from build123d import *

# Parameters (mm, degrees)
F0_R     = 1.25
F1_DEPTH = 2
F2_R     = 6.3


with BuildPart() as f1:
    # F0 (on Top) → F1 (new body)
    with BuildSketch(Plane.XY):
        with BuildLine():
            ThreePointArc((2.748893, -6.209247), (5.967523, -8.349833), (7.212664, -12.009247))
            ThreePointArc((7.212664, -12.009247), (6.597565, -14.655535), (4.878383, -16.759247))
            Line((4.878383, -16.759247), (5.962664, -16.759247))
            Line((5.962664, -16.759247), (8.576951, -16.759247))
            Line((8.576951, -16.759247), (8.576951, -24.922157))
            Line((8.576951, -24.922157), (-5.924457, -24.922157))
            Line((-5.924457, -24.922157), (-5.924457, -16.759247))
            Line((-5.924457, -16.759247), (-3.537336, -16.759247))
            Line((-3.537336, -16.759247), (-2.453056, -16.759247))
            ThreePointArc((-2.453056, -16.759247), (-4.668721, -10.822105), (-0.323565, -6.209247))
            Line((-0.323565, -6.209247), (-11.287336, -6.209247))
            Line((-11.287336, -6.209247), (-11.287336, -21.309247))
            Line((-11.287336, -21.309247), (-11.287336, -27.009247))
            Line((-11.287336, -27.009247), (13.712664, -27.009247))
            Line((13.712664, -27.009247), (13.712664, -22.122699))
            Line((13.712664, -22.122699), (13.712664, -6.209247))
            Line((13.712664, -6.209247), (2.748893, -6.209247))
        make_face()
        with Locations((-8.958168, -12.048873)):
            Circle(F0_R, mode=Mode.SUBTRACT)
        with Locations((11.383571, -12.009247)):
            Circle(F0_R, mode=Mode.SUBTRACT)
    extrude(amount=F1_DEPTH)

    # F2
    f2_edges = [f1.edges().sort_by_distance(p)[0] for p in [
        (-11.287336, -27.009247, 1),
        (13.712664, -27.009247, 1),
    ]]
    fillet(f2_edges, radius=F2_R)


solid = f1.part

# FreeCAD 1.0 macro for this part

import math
import FreeCAD as App
import Part
import Sketcher
from FreeCAD import Vector
Q = App.Units.Quantity


def edges_at(feature, points):
    """Names of the edges that pass closest to the given points."""
    edges = feature.Shape.Edges
    near = lambda p: min(range(len(edges)), key=lambda i: edges[i].distToShape(Part.Vertex(*p))[0])
    return sorted({f"Edge{near(p) + 1}" for p in points})

doc = App.newDocument("Part")
body = doc.addObject("PartDesign::Body", "Body")

sketch1 = body.newObject("Sketcher::SketchObject", "Sketch")
sketch1.AttachmentSupport = (doc.getObject("XY_Plane"), [""])
sketch1.MapMode = "FlatFace"
sketch1.addGeometry([
    Part.ArcOfCircle(Part.Circle(Vector(1.2, -12, 0), Vector(0, 0, 1), 6), math.radians(0), math.radians(75)),
    Part.ArcOfCircle(Part.Circle(Vector(1.2, -12, 0), Vector(0, 0, 1), 6), math.radians(-52), math.radians(0)),
    Part.LineSegment(Vector(4.9, -16.8, 0), Vector(8.6, -16.8, 0)),
    Part.LineSegment(Vector(8.6, -16.8, 0), Vector(8.6, -24.9, 0)),
    Part.LineSegment(Vector(8.6, -24.9, 0), Vector(-5.9, -24.9, 0)),
    Part.LineSegment(Vector(-5.9, -24.9, 0), Vector(-5.9, -16.8, 0)),
    Part.LineSegment(Vector(-5.9, -16.8, 0), Vector(-2.5, -16.8, 0)),
    Part.ArcOfCircle(Part.Circle(Vector(1.2, -12, 0), Vector(0, 0, 1), 6), math.radians(105), math.radians(232)),
    Part.LineSegment(Vector(-0.3, -6.2, 0), Vector(-11.3, -6.2, 0)),
    Part.LineSegment(Vector(-11.3, -6.2, 0), Vector(-11.3, -27, 0)),
    Part.LineSegment(Vector(-11.3, -27, 0), Vector(13.7, -27, 0)),
    Part.LineSegment(Vector(13.7, -27, 0), Vector(13.7, -6.2, 0)),
    Part.LineSegment(Vector(13.7, -6.2, 0), Vector(2.7, -6.2, 0)),
    Part.Circle(Vector(-9, -12, 0), Vector(0, 0, 1), 1.2),
    Part.Circle(Vector(11.4, -12, 0), Vector(0, 0, 1), 1.2),
], False)
sketch1.addConstraint([
    Sketcher.Constraint("Tangent", 0, 1, 1, 2),
    Sketcher.Constraint("Coincident", 1, 1, 2, 1),
    Sketcher.Constraint("Coincident", 2, 2, 3, 1),
    Sketcher.Constraint("Coincident", 3, 2, 4, 1),
    Sketcher.Constraint("Coincident", 4, 2, 5, 1),
    Sketcher.Constraint("Coincident", 5, 2, 6, 1),
    Sketcher.Constraint("Coincident", 6, 2, 7, 2),
    Sketcher.Constraint("Coincident", 7, 1, 8, 1),
    Sketcher.Constraint("Coincident", 8, 2, 9, 1),
    Sketcher.Constraint("Coincident", 9, 2, 10, 1),
    Sketcher.Constraint("Coincident", 10, 2, 11, 1),
    Sketcher.Constraint("Coincident", 11, 2, 12, 1),
    Sketcher.Constraint("Coincident", 12, 2, 0, 2),
    Sketcher.Constraint("Horizontal", 2),
    Sketcher.Constraint("Vertical", 3),
    Sketcher.Constraint("Horizontal", 4),
    Sketcher.Constraint("Vertical", 5),
    Sketcher.Constraint("Horizontal", 6),
    Sketcher.Constraint("Horizontal", 8),
    Sketcher.Constraint("Vertical", 9),
    Sketcher.Constraint("Horizontal", 10),
    Sketcher.Constraint("Vertical", 11),
    Sketcher.Constraint("Horizontal", 12),
    Sketcher.Constraint("Coincident", 7, 3, 0, 3),
    Sketcher.Constraint("Equal", 1, 7),
    Sketcher.Constraint("Equal", 13, 14),
    Sketcher.Constraint("Horizontal", 7, 3, 14, 3),
    Sketcher.Constraint("Horizontal", 14, 3, 0, 1),
    Sketcher.Constraint("Horizontal", 2, 2, 5, 2),
    Sketcher.Constraint("Horizontal", 8, 2, 11, 2),
    Sketcher.Constraint("Equal", 8, 12),
    Sketcher.Constraint("Radius", 0, Q("6.000002 mm")),
    Sketcher.Constraint("Radius", 1, Q("5.999999 mm")),
    Sketcher.Constraint("Diameter", 13, Q("2.5 mm")),
    Sketcher.Constraint("DistanceX", 10, 1, 10, 2, Q("25 mm")),
    Sketcher.Constraint("DistanceY", 9, 2, 9, 1, Q("20.8 mm")),
    Sketcher.Constraint("DistanceY", 10, 2, 14, 3, Q("15 mm")),
    Sketcher.Constraint("DistanceY", 1, 1, 0, 1, Q("4.75 mm")),
    Sketcher.Constraint("DistanceX", 6, 1, 6, 2, Q("3.471401 mm")),
    Sketcher.Constraint("DistanceY", 3, 2, 3, 1, Q("8.16291 mm")),
    Sketcher.Constraint("DistanceX", 2, 1, 2, 2, Q("3.698568 mm")),
    Sketcher.Constraint("DistanceY", 0, 3, -1, 1, Q("12.009248 mm")),
    Sketcher.Constraint("DistanceX", -1, 1, 14, 3, Q("11.383571 mm")),
    Sketcher.Constraint("DistanceX", -1, 1, 2, 2, Q("8.576951 mm")),
    Sketcher.Constraint("DistanceX", 13, 3, 0, 3, Q("10.17083 mm")),
    Sketcher.Constraint("DistanceY", 13, 3, -1, 1, Q("12.048873 mm")),
])
pad1 = body.newObject("PartDesign::Pad", "Pad")
pad1.Profile = sketch1
pad1.Length = 2
doc.recompute()

fillet = body.newObject("PartDesign::Fillet", "Fillet")
fillet.Base = (pad1, edges_at(pad1, [(-11.287, -27.009, 1), (13.713, -27.009, 1)]))
fillet.Radius = 6.3

doc.recompute()
